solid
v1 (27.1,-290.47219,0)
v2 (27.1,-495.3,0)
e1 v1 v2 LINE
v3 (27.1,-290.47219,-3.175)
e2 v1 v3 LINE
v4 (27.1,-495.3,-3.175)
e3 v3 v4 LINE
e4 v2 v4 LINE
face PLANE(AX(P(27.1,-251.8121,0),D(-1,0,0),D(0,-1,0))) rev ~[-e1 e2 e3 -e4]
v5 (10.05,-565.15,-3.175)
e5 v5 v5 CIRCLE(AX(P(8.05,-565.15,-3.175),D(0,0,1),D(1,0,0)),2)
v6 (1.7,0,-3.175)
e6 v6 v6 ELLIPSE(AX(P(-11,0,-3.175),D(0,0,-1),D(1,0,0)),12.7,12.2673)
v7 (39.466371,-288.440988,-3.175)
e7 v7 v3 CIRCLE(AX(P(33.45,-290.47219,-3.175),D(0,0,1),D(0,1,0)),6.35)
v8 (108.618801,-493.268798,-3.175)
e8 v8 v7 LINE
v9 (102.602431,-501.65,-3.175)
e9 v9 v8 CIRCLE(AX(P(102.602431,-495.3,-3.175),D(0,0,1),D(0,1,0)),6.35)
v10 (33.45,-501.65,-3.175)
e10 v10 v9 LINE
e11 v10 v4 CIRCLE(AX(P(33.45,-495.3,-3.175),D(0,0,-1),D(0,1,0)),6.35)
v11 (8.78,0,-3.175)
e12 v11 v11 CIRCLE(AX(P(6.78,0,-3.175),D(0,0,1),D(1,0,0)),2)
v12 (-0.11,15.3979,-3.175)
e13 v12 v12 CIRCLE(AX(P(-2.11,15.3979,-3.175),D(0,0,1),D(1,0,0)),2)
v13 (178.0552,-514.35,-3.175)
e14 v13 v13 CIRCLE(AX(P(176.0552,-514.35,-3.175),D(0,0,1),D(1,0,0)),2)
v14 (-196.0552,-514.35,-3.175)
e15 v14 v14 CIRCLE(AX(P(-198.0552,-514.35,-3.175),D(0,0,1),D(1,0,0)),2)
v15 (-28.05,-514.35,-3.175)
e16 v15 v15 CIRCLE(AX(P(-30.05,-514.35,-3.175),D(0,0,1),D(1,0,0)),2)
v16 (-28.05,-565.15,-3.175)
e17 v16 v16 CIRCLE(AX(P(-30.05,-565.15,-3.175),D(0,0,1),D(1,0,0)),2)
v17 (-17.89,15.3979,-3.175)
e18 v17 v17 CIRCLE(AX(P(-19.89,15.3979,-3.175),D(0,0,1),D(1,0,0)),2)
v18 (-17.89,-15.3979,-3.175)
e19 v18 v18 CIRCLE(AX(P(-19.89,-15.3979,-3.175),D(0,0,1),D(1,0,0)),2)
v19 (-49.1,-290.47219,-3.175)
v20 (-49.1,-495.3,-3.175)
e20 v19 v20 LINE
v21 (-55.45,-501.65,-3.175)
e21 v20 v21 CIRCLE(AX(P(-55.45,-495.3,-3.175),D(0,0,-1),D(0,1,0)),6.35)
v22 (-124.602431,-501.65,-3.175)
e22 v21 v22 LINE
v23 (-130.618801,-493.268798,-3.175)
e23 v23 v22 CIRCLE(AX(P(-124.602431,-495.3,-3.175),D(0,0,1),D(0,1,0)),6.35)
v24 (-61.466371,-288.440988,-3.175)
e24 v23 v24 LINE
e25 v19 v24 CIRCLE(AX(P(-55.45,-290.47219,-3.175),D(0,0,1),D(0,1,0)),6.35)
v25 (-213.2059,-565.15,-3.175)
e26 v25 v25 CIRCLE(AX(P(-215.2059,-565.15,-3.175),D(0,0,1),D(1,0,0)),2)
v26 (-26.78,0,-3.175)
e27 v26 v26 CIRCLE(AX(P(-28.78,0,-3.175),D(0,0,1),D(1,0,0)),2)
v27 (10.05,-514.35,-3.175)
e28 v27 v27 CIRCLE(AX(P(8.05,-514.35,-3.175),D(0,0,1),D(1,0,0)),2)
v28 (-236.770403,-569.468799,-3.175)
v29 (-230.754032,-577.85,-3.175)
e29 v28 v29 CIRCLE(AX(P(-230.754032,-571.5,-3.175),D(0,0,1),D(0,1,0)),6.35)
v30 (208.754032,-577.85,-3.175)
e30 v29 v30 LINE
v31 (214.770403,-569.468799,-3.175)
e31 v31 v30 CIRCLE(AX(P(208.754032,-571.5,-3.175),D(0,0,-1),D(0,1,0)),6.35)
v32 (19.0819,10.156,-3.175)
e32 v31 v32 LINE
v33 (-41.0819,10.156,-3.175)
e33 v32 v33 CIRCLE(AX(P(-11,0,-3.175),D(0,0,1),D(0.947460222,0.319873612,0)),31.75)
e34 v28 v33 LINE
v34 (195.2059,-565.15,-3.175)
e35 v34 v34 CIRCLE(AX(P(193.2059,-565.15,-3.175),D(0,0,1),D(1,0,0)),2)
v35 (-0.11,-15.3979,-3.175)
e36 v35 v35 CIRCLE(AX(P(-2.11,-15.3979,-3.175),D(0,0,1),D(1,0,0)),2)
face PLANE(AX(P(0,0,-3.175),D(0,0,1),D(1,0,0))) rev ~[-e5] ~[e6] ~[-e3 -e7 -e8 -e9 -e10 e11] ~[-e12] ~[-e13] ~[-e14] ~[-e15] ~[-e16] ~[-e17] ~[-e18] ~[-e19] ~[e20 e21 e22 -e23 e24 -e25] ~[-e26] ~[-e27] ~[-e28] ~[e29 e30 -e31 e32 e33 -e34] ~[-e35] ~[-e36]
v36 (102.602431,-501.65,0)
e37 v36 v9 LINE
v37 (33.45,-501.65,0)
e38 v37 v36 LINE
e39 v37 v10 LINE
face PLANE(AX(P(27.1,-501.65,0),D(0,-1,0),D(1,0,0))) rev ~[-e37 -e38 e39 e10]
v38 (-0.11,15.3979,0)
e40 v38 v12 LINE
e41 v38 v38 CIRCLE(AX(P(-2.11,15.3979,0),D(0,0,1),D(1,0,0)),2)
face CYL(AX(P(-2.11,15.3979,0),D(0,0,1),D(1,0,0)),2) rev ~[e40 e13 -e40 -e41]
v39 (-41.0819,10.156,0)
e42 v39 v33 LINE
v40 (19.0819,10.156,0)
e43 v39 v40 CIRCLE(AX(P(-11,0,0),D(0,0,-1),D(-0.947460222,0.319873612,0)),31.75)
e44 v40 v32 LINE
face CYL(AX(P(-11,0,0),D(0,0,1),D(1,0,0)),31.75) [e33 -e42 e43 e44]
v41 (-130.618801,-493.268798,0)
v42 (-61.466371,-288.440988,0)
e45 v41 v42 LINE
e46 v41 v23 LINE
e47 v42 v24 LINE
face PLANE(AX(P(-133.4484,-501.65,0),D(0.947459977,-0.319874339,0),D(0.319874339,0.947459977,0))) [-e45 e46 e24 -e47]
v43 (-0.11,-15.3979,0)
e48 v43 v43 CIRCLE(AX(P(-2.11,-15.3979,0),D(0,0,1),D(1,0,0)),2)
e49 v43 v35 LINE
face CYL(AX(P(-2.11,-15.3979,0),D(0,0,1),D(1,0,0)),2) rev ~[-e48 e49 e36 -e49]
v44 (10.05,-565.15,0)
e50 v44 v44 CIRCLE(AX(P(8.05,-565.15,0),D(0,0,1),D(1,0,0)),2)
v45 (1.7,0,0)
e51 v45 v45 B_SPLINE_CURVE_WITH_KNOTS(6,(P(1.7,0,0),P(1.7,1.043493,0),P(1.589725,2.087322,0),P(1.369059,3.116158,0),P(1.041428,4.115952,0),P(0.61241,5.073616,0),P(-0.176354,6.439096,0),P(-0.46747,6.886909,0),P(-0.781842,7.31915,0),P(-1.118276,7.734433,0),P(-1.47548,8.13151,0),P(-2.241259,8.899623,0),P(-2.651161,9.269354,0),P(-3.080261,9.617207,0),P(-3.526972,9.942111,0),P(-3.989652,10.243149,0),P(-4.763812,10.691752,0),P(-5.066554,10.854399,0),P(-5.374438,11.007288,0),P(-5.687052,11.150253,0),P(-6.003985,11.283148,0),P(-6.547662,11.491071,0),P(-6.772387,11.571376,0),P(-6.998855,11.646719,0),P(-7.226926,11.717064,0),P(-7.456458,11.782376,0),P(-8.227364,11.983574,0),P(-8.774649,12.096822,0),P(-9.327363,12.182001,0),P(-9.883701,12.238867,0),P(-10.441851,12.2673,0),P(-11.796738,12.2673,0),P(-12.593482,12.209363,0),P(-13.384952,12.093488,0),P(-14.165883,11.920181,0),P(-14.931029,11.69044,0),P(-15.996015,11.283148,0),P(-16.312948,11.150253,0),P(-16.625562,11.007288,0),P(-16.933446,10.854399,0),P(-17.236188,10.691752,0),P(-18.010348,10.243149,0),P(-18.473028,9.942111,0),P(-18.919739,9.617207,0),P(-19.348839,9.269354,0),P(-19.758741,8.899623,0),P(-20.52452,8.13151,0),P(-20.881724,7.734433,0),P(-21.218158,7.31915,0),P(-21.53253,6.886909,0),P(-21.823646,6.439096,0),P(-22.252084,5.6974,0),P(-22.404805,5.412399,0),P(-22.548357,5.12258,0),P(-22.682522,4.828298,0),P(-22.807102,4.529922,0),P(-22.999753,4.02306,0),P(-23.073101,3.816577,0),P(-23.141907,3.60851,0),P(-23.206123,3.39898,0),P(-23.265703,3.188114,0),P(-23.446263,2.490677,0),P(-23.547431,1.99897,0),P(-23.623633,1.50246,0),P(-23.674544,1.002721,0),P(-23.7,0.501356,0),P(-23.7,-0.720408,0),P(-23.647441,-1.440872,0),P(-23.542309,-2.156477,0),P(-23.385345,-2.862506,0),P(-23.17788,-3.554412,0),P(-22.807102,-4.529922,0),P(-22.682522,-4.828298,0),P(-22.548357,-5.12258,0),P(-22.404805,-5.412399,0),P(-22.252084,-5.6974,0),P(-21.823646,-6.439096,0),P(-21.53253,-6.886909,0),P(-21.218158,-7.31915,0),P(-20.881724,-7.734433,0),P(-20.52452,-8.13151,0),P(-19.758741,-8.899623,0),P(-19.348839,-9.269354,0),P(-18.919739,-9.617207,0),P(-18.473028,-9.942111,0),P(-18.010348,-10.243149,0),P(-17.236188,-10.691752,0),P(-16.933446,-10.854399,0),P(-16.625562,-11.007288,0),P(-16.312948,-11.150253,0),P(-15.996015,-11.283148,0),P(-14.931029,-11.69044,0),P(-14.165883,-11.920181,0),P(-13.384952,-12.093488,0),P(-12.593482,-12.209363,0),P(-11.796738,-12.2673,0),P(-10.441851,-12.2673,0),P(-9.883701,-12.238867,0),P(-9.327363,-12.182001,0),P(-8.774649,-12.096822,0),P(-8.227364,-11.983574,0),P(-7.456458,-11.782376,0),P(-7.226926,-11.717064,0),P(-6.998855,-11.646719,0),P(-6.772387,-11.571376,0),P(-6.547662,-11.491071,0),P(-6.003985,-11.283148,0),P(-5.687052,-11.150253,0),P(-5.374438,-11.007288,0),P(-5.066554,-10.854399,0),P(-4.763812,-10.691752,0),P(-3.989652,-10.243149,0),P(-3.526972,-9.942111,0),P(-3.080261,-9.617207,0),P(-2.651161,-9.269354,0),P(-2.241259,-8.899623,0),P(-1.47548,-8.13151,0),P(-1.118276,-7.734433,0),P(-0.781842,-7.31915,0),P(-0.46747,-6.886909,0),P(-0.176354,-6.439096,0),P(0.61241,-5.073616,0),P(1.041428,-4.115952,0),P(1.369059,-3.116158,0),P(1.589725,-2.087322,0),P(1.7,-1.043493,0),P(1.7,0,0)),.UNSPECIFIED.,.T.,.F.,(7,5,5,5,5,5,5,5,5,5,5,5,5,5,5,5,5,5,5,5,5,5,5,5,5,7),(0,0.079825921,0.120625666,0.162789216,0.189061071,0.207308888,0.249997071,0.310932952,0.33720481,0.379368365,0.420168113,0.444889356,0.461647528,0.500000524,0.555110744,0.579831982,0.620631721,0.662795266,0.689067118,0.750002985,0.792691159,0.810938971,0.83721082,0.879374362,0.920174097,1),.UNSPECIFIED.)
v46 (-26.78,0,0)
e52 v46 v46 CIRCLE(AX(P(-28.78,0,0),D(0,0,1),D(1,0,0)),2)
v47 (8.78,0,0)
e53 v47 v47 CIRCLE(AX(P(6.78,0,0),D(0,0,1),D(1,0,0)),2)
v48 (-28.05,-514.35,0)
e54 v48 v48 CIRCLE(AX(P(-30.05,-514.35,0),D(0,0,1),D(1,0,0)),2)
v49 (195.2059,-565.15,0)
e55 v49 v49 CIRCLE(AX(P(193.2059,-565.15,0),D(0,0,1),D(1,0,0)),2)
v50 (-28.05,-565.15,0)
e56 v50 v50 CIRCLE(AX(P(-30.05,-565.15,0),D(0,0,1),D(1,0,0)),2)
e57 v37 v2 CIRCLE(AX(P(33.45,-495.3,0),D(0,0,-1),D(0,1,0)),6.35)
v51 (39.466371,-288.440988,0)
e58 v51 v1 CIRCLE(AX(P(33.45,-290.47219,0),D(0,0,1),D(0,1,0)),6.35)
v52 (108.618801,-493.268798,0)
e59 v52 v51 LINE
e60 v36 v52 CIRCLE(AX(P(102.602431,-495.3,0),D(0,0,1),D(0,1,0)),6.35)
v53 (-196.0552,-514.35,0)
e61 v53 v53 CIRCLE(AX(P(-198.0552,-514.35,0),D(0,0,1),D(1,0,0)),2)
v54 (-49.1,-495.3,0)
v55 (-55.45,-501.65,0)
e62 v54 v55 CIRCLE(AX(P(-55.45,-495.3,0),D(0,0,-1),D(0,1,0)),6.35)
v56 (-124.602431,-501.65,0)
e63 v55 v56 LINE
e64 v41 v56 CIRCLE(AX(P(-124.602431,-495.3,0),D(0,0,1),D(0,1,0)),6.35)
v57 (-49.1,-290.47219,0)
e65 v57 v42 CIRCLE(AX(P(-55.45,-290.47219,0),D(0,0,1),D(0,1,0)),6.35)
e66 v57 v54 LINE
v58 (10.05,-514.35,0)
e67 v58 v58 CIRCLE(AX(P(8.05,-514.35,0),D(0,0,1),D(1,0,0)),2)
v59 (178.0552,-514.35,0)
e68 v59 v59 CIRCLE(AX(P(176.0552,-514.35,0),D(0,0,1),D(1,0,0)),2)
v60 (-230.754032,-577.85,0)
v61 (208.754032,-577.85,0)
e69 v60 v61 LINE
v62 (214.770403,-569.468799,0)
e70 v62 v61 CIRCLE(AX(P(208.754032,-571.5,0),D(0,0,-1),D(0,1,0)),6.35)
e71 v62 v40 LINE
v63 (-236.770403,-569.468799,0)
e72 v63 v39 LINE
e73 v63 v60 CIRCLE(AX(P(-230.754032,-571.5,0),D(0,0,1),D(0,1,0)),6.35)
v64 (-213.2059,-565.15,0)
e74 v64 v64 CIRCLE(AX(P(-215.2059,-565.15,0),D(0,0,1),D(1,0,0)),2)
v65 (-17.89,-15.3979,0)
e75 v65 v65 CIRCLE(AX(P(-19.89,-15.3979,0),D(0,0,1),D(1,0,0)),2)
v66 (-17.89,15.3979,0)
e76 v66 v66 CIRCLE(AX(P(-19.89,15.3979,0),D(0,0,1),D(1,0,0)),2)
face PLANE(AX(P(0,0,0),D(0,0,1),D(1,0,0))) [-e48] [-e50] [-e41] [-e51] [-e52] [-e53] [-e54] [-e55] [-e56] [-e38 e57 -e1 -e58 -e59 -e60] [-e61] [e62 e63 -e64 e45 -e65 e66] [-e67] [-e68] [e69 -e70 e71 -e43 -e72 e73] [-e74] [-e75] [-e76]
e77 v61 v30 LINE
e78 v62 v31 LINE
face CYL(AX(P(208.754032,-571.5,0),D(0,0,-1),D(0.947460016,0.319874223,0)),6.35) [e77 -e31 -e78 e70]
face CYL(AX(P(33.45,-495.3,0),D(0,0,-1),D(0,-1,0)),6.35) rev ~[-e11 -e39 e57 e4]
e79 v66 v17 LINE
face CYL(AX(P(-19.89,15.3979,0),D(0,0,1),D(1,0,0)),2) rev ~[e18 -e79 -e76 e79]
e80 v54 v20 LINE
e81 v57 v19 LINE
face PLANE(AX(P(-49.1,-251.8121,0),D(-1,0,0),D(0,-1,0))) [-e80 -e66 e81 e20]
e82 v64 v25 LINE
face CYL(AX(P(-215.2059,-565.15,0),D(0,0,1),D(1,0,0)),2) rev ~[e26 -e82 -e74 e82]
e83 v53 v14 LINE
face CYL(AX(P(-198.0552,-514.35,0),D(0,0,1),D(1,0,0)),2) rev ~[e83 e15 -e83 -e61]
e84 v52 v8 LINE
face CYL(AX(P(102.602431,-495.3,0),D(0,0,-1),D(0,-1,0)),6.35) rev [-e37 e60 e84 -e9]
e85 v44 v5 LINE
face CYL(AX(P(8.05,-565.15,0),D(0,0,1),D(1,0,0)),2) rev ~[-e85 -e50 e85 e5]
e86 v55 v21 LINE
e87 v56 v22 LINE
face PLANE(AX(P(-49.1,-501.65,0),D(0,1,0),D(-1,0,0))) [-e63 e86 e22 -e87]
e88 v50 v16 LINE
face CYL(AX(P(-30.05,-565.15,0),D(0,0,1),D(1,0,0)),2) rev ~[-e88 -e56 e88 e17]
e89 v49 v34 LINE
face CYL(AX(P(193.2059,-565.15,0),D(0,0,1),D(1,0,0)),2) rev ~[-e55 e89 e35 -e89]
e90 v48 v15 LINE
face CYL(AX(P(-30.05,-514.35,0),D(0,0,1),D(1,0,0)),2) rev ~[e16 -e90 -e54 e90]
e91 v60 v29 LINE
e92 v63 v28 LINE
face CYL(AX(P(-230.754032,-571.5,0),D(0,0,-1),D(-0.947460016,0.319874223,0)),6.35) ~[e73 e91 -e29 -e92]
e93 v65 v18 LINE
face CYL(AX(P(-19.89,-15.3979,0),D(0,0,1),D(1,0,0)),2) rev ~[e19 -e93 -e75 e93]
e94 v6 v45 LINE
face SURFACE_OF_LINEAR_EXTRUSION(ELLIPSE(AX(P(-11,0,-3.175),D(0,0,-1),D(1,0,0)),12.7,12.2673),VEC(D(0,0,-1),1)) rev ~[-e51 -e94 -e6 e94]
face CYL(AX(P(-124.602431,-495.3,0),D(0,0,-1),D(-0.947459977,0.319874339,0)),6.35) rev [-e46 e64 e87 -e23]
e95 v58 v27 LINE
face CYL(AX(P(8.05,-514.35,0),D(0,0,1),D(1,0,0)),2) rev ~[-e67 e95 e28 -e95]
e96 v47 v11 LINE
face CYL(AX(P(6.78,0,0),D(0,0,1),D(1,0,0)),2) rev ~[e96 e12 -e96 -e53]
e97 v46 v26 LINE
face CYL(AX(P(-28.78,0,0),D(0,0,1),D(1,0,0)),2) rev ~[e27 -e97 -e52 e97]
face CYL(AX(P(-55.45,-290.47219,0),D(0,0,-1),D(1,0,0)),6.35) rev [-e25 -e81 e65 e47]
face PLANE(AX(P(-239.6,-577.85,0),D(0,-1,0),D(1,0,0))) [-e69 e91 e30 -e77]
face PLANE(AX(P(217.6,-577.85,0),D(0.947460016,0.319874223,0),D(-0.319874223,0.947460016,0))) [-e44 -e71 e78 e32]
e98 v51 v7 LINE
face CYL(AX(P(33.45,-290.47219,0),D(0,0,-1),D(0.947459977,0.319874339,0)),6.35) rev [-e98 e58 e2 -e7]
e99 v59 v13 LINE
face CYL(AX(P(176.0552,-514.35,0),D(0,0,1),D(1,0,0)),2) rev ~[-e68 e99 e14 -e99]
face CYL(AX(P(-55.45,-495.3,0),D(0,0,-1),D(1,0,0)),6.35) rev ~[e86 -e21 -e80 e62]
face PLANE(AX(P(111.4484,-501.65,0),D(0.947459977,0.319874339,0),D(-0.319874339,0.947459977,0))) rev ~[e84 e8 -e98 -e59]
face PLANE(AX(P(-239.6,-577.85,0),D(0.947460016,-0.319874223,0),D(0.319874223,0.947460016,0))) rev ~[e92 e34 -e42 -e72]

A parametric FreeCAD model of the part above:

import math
import FreeCAD as App
import Part
import Sketcher
Q = App.Units.Quantity


def edges_at(feature, points):
    """Names of the edges that pass closest to the given points."""
    edges = feature.Shape.Edges
    near = lambda p: min(range(len(edges)), key=lambda i: edges[i].distToShape(Part.Vertex(*p))[0])
    return sorted({f"Edge{near(p) + 1}" for p in points})

doc = App.newDocument("Part")
params = doc.addObject("Spreadsheet::Sheet", "Params")
for row, (alias, value) in enumerate([
    ("sketch1_width", "18 in"),
    ("sketch1_radius", "1.25 in"),
    ("pad1_length", "0.125 in"),
    ("fillet_radius", "0.25 in"),
], start=1):
    params.set(f"A{row}", alias)
    params.set(f"B{row}", "=" + value)
    params.setAlias(f"B{row}", alias)

body = doc.addObject("PartDesign::Body", "Body")

# Sketch on XY plane
sketch1 = body.newObject("Sketcher::SketchObject", "Sketch")
sketch1.AttachmentSupport = (doc.getObject("XY_Plane"), [""])
sketch1.MapMode = "FlatFace"
sketch1.addGeometry([
    Part.LineSegment(App.Vector(-41.0819, 10.156, 0), App.Vector(-239.6, -577.85, 0)),  # 0
    Part.LineSegment(App.Vector(-239.6, -577.85, 0), App.Vector(217.6, -577.85, 0)),  # 1
    Part.LineSegment(App.Vector(217.6, -577.85, 0), App.Vector(19.0819, 10.156, 0)),  # 2
    Part.ArcOfCircle(Part.Circle(App.Vector(-11, 0, 0), App.Vector(0, 0, 1), 31.75), math.radians(18.655282), math.radians(161.344718)),  # 3
    Part.Circle(App.Vector(-19.89, -15.3979, 0), App.Vector(0, 0, 1), 2),  # 4
    Part.Circle(App.Vector(-28.78, 0, 0), App.Vector(0, 0, 1), 2),  # 5
    Part.Circle(App.Vector(-19.89, 15.3979, 0), App.Vector(0, 0, 1), 2),  # 6
    Part.Circle(App.Vector(-2.11, -15.3979, 0), App.Vector(0, 0, 1), 2),  # 7
    Part.Circle(App.Vector(-11, 0, 0), App.Vector(0, 0, 1), 11),  # 8
    Part.Circle(App.Vector(6.78, 0, 0), App.Vector(0, 0, 1), 2),  # 9
    Part.Circle(App.Vector(-2.11, 15.3979, 0), App.Vector(0, 0, 1), 2),  # 10
    Part.LineSegment(App.Vector(27.1, -251.8121, 0), App.Vector(111.4484, -501.65, 0)),  # 11
    Part.LineSegment(App.Vector(111.4484, -501.65, 0), App.Vector(27.1, -501.65, 0)),  # 12
    Part.LineSegment(App.Vector(27.1, -501.65, 0), App.Vector(27.1, -251.8121, 0)),  # 13
    Part.Circle(App.Vector(-215.2059, -565.15, 0), App.Vector(0, 0, 1), 2),  # 14
    Part.Circle(App.Vector(-198.0552, -514.35, 0), App.Vector(0, 0, 1), 2),  # 15
    Part.Circle(App.Vector(-30.05, -565.15, 0), App.Vector(0, 0, 1), 2),  # 16
    Part.Circle(App.Vector(-30.05, -514.35, 0), App.Vector(0, 0, 1), 2),  # 17
    Part.LineSegment(App.Vector(-49.1, -251.8121, 0), App.Vector(-49.1, -501.65, 0)),  # 18
    Part.LineSegment(App.Vector(-49.1, -501.65, 0), App.Vector(-133.4484, -501.65, 0)),  # 19
    Part.LineSegment(App.Vector(-133.4484, -501.65, 0), App.Vector(-49.1, -251.8121, 0)),  # 20
    Part.Circle(App.Vector(8.05, -565.15, 0), App.Vector(0, 0, 1), 2),  # 21
    Part.Circle(App.Vector(8.05, -514.35, 0), App.Vector(0, 0, 1), 2),  # 22
    Part.Circle(App.Vector(193.2059, -565.15, 0), App.Vector(0, 0, 1), 2),  # 23
    Part.Circle(App.Vector(176.0552, -514.35, 0), App.Vector(0, 0, 1), 2),  # 24
], False)
sketch1.addConstraint([
    Sketcher.Constraint("Coincident", 0, 2, 1, 1),
    Sketcher.Constraint("Coincident", 1, 2, 2, 1),
    Sketcher.Constraint("Tangent", 2, 2, 3, 1),
    Sketcher.Constraint("Tangent", 3, 2, 0, 1),
    Sketcher.Constraint("Coincident", 11, 2, 12, 1),
    Sketcher.Constraint("Coincident", 12, 2, 13, 1),
    Sketcher.Constraint("Coincident", 13, 2, 11, 1),
    Sketcher.Constraint("Coincident", 18, 2, 19, 1),
    Sketcher.Constraint("Coincident", 19, 2, 20, 1),
    Sketcher.Constraint("Coincident", 20, 2, 18, 1),
    Sketcher.Constraint("Horizontal", 1),
    Sketcher.Constraint("Horizontal", 12),
    Sketcher.Constraint("Vertical", 13),
    Sketcher.Constraint("Vertical", 18),
    Sketcher.Constraint("Horizontal", 19),
    Sketcher.Constraint("Coincident", 8, 3, 3, 3),
    Sketcher.Constraint("Equal", 4, 5),
    Sketcher.Constraint("Equal", 5, 6),
    Sketcher.Constraint("Equal", 6, 7),
    Sketcher.Constraint("Equal", 7, 9),
    Sketcher.Constraint("Equal", 9, 10),
    Sketcher.Constraint("Equal", 10, 14),
    Sketcher.Constraint("Equal", 14, 15),
    Sketcher.Constraint("Equal", 15, 16),
    Sketcher.Constraint("Equal", 16, 17),
    Sketcher.Constraint("Equal", 17, 21),
    Sketcher.Constraint("Equal", 21, 22),
    Sketcher.Constraint("Equal", 22, 23),
    Sketcher.Constraint("Equal", 23, 24),
    Sketcher.Constraint("Symmetric", 4, 3, 6, 3, -1),
    Sketcher.Constraint("Symmetric", 7, 3, 10, 3, -1),
    Sketcher.Constraint("PointOnObject", 3, 3, -1),
    Sketcher.Constraint("PointOnObject", 5, 3, -1),
    Sketcher.Constraint("PointOnObject", 9, 3, -1),
    Sketcher.Constraint("Parallel", 2, 11),
    Sketcher.Constraint("Parallel", 0, 20),
    Sketcher.Constraint("Horizontal", 4, 3, 7, 3),
    Sketcher.Constraint("Horizontal", 14, 3, 16, 3),
    Sketcher.Constraint("Horizontal", 15, 3, 17, 3),
    Sketcher.Constraint("Horizontal", 16, 3, 21, 3),
    Sketcher.Constraint("Horizontal", 17, 3, 22, 3),
    Sketcher.Constraint("Horizontal", 21, 3, 23, 3),
    Sketcher.Constraint("Horizontal", 22, 3, 24, 3),
    Sketcher.Constraint("Horizontal", 12, 2, 18, 2),
    Sketcher.Constraint("Horizontal", 13, 2, 20, 2),
    Sketcher.Constraint("Vertical", 16, 3, 17, 3),
    Sketcher.Constraint("Vertical", 21, 3, 22, 3),
    Sketcher.Constraint("Equal", 12, 19),
    Sketcher.Constraint("DistanceX", 1, 1, 1, 2, Q("18 in")),
    Sketcher.Constraint("Radius", 3, Q("1.25 in")),
    Sketcher.Constraint("DistanceY", 1, 2, 11, 2, Q("3 in")),
    Sketcher.Constraint("DistanceX", 18, 2, 12, 2, Q("3 in")),
    Sketcher.Constraint("DistanceX", 5, 3, 3, 3, Q("0.7 in")),
    Sketcher.Constraint("DistanceX", 4, 3, 7, 3, Q("0.7 in")),
    Sketcher.Constraint("DistanceX", 3, 3, 9, 3, Q("0.7 in")),
    Sketcher.Constraint("DistanceX", 16, 3, 21, 3, Q("1.5 in")),
    Sketcher.Constraint("DistanceY", 0, 2, 14, 3, Q("0.5 in")),
    Sketcher.Constraint("DistanceY", 0, 2, 15, 3, Q("2.5 in")),
    Sketcher.Constraint("DistanceX", 3, 3, 13, 2, Q("1.5 in")),
    Sketcher.Constraint("Diameter", 4, 4.0),
    Sketcher.Constraint("DistanceX", 22, 3, 12, 2, Q("0.75 in")),
    Sketcher.Constraint("DistanceX", 16, 3, 4, 3, Q("0.4 in")),
    Sketcher.Constraint("Diameter", 8, 22.0),
    Sketcher.Constraint("DistanceY", 14, 3, -1, 1, Q("22.25 in")),
    Sketcher.Constraint("DistanceX", 12, 2, 12, 1, Q("3.3208 in")),
    Sketcher.Constraint("DistanceX", -1, 1, 24, 3, Q("6.9313 in")),
    Sketcher.Constraint("DistanceX", 3, 2, -1, 1, Q("1.6174 in")),
    Sketcher.Constraint("DistanceX", 14, 3, 4, 3, Q("7.6896 in")),
    Sketcher.Constraint("DistanceX", 21, 3, 23, 3, Q("7.2896 in")),
    Sketcher.Constraint("DistanceY", 4, 3, -1, 1, 15.398),
    Sketcher.Constraint("DistanceX", 15, 3, -1, 1, 198.0552),
])
sketch1.setExpression("Constraints[48]", "Params.sketch1_width")
sketch1.setExpression("Constraints[49]", "Params.sketch1_radius")
pad1 = body.newObject("PartDesign::Pad", "Pad")
pad1.Profile = sketch1
pad1.setExpression("Length", "Params.pad1_length")
pad1.Reversed = True
doc.recompute()

fillet = body.newObject("PartDesign::Fillet", "Fillet")
fillet.Base = (pad1, edges_at(pad1, [
    (27.1, -251.812, -1.587),
    (-49.1, -251.812, -1.587),
    (111.448, -501.65, -1.587),
    (217.6, -577.85, -1.587),
    (27.1, -501.65, -1.587),
    (-49.1, -501.65, -1.587),
    (-133.448, -501.65, -1.587),
    (-239.6, -577.85, -1.587),
]))
fillet.setExpression("Radius", "Params.fillet_radius")

# Sketch on XY plane
sketch2 = body.newObject("Sketcher::SketchObject", "Sketch001")
sketch2.AttachmentSupport = (doc.getObject("XY_Plane"), [""])
sketch2.MapMode = "FlatFace"
sketch2.AttachmentOffset = App.Placement(App.Vector(0, 0, -0.125 * 25.4), App.Rotation())
sketch2.addGeometry(Part.Ellipse(App.Vector(1.7, 0, 0), App.Vector(-11, 12.2673, 0), App.Vector(-11, 0, 0)), False)
sketch2.addConstraint(Sketcher.Constraint("Block", 0))
pocket1 = body.newObject("PartDesign::Pocket", "Pocket")
pocket1.Profile = sketch2
pocket1.Type = "ThroughAll"
pocket1.Reversed = True

doc.recompute()
